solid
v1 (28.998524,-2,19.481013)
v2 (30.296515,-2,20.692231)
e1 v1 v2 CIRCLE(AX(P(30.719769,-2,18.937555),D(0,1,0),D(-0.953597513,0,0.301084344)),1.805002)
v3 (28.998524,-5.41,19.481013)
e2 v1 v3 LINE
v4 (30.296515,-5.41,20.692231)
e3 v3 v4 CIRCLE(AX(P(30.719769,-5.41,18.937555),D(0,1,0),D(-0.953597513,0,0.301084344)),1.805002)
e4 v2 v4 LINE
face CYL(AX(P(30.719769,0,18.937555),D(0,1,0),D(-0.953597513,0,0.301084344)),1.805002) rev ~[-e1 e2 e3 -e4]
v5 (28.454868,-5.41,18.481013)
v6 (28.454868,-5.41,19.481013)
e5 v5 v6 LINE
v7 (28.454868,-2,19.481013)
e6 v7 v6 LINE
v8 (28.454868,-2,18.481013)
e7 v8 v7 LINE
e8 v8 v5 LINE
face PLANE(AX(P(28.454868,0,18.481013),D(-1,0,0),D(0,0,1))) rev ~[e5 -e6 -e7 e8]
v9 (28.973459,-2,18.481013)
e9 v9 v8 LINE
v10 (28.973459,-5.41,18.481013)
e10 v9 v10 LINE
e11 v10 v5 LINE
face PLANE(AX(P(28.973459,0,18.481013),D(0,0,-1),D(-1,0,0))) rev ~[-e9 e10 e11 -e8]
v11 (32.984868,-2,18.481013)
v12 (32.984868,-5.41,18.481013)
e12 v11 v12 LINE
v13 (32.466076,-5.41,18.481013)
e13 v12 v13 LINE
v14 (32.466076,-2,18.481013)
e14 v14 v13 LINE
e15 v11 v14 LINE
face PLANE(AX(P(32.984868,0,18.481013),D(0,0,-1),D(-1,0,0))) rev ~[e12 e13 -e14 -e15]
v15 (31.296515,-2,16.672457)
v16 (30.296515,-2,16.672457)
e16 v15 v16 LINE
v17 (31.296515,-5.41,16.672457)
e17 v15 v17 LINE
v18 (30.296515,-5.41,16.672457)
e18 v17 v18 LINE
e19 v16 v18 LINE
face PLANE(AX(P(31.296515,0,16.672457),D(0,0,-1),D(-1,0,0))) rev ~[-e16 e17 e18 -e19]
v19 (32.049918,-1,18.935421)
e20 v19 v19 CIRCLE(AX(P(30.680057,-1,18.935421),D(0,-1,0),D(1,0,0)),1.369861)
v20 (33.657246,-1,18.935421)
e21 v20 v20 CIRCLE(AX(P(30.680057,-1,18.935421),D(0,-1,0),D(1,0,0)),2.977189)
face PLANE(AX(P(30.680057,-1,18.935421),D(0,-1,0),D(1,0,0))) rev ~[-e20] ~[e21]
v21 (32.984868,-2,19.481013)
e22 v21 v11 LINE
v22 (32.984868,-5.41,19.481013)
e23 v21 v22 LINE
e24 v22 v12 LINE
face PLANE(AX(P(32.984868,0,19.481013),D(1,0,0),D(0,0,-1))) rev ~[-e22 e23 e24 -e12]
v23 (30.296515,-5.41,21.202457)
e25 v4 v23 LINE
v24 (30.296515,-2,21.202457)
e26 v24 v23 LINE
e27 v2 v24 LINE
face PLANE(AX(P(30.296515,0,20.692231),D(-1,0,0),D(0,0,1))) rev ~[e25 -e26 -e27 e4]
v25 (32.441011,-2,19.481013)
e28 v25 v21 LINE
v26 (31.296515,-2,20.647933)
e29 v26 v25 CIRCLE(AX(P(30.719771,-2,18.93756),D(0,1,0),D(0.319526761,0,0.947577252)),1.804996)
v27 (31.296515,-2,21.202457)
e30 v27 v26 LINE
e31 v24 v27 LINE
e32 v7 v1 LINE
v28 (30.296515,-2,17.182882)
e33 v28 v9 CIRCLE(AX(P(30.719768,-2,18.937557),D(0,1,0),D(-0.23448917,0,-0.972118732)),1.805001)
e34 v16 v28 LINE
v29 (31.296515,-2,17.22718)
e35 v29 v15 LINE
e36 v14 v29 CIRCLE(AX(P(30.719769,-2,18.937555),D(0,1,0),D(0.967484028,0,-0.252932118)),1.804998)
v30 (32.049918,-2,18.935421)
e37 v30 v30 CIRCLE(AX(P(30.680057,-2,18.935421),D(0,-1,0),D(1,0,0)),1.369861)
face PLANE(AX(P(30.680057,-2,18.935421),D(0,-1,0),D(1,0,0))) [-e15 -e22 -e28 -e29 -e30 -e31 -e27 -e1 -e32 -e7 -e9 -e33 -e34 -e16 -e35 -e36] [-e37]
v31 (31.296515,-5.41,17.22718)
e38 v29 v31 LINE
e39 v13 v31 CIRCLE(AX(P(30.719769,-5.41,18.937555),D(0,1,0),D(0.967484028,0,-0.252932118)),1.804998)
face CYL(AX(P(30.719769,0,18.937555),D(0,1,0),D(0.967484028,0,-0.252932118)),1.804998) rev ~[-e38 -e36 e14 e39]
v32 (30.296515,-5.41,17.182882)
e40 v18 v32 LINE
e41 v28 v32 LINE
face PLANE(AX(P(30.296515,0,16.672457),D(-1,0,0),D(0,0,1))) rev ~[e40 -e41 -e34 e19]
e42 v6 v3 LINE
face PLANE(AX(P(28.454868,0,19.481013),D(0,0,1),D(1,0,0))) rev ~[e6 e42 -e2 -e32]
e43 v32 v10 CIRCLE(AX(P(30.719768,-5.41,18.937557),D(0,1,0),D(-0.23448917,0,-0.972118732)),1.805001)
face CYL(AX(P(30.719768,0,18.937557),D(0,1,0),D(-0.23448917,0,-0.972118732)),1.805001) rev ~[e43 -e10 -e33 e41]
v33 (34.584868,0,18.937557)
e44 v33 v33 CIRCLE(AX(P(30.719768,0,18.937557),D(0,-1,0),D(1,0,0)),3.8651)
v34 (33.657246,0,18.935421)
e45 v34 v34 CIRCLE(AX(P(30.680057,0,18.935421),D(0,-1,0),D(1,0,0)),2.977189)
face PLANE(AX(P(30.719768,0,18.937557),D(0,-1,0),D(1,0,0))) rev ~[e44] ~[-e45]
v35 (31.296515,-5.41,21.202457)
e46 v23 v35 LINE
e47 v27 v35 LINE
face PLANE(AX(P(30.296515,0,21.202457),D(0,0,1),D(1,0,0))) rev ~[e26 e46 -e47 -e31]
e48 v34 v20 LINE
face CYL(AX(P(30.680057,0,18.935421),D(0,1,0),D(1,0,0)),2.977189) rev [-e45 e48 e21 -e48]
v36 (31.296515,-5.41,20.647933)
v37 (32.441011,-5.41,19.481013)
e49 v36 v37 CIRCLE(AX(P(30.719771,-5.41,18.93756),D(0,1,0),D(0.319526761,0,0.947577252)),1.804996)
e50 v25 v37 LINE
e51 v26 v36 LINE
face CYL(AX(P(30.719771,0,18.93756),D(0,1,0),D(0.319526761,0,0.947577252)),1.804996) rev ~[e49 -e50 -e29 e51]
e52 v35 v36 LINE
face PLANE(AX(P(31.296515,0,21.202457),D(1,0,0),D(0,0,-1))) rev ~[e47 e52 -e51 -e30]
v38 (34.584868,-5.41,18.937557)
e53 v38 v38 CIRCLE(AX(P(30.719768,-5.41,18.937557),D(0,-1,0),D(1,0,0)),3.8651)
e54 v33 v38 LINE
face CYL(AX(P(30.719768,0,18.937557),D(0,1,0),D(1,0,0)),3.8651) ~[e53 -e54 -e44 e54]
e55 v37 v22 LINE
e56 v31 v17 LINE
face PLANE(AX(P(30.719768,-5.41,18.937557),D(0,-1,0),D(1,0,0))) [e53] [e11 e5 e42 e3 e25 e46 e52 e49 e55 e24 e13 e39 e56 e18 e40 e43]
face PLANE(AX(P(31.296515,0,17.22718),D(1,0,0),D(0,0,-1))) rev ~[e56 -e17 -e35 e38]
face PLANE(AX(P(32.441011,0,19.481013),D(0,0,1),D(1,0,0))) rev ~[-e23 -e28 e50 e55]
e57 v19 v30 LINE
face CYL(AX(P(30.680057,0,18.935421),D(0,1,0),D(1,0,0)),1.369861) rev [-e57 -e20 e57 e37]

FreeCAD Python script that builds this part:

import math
import FreeCAD as App
import Part
import Sketcher
from FreeCAD import Vector

doc = App.newDocument("Part")
body = doc.addObject("PartDesign::Body", "Body")

sketch1 = body.newObject("Sketcher::SketchObject", "Sketch")
sketch1.AttachmentSupport = (doc.getObject("XZ_Plane"), [""])
sketch1.MapMode = "FlatFace"
sketch1.addGeometry([
    Part.Circle(Vector(30.719768, 18.937557, 0), Vector(0, 0, 1), 3.8651),
    Part.LineSegment(Vector(28.454868, 19.481013, 0), Vector(28.998524, 19.481013, 0)),
    Part.ArcOfCircle(Part.Circle(Vector(30.719769, 18.937555, 0), Vector(0, 0, 1), 1.805002), math.radians(103.561538), math.radians(162.477257)),
    Part.LineSegment(Vector(30.296515, 20.692231, 0), Vector(30.296515, 21.202457, 0)),
    Part.LineSegment(Vector(30.296515, 21.202457, 0), Vector(31.296515, 21.202457, 0)),
    Part.LineSegment(Vector(31.296515, 21.202457, 0), Vector(31.296515, 20.647933, 0)),
    Part.ArcOfCircle(Part.Circle(Vector(30.719771, 18.93756, 0), Vector(0, 0, 1), 1.804996), math.radians(17.522643), math.radians(71.365692)),
    Part.LineSegment(Vector(32.441011, 19.481013, 0), Vector(32.984868, 19.481013, 0)),
    Part.LineSegment(Vector(32.984868, 19.481013, 0), Vector(32.984868, 18.481013, 0)),
    Part.LineSegment(Vector(32.984868, 18.481013, 0), Vector(32.466076, 18.481013, 0)),
    Part.ArcOfCircle(Part.Circle(Vector(30.719769, 18.937555, 0), Vector(0, 0, 1), 1.804998), math.radians(-71.365668), math.radians(-14.651088)),
    Part.LineSegment(Vector(31.296515, 17.22718, 0), Vector(31.296515, 16.672457, 0)),
    Part.LineSegment(Vector(31.296515, 16.672457, 0), Vector(30.296515, 16.672457, 0)),
    Part.LineSegment(Vector(30.296515, 16.672457, 0), Vector(30.296515, 17.182882, 0)),
    Part.ArcOfCircle(Part.Circle(Vector(30.719768, 18.937557, 0), Vector(0, 0, 1), 1.805001), math.radians(-165.348863), math.radians(-103.561513)),
    Part.LineSegment(Vector(28.973459, 18.481013, 0), Vector(28.454868, 18.481013, 0)),
    Part.LineSegment(Vector(28.454868, 18.481013, 0), Vector(28.454868, 19.481013, 0)),
], False)
sketch1.addConstraint([
    Sketcher.Constraint("Coincident", 1, 2, 2, 2),
    Sketcher.Constraint("Coincident", 2, 1, 3, 1),
    Sketcher.Constraint("Coincident", 3, 2, 4, 1),
    Sketcher.Constraint("Coincident", 4, 2, 5, 1),
    Sketcher.Constraint("Coincident", 5, 2, 6, 2),
    Sketcher.Constraint("Coincident", 6, 1, 7, 1),
    Sketcher.Constraint("Coincident", 7, 2, 8, 1),
    Sketcher.Constraint("Coincident", 8, 2, 9, 1),
    Sketcher.Constraint("Coincident", 9, 2, 10, 2),
    Sketcher.Constraint("Coincident", 10, 1, 11, 1),
    Sketcher.Constraint("Coincident", 11, 2, 12, 1),
    Sketcher.Constraint("Coincident", 12, 2, 13, 1),
    Sketcher.Constraint("Coincident", 13, 2, 14, 2),
    Sketcher.Constraint("Coincident", 14, 1, 15, 1),
    Sketcher.Constraint("Coincident", 15, 2, 16, 1),
    Sketcher.Constraint("Coincident", 16, 2, 1, 1),
    Sketcher.Constraint("Horizontal", 1),
    Sketcher.Constraint("Vertical", 3),
    Sketcher.Constraint("Horizontal", 4),
    Sketcher.Constraint("Vertical", 5),
    Sketcher.Constraint("Horizontal", 7),
    Sketcher.Constraint("Vertical", 8),
    Sketcher.Constraint("Horizontal", 9),
    Sketcher.Constraint("Vertical", 11),
    Sketcher.Constraint("Horizontal", 12),
    Sketcher.Constraint("Vertical", 13),
    Sketcher.Constraint("Horizontal", 15),
    Sketcher.Constraint("Vertical", 16),
    Sketcher.Constraint("Coincident", 2, 3, 0, 3),
    Sketcher.Constraint("Coincident", 6, 3, 0, 3),
    Sketcher.Constraint("Coincident", 10, 3, 0, 3),
    Sketcher.Constraint("Coincident", 14, 3, 0, 3),
    Sketcher.Constraint("Equal", 2, 14),
    Sketcher.Constraint("Horizontal", 1, 2, 6, 1),
    Sketcher.Constraint("Horizontal", 9, 2, 14, 1),
    Sketcher.Constraint("Vertical", 5, 2, 10, 1),
    Sketcher.Constraint("Vertical", 3, 2, 12, 2),
    Sketcher.Constraint("Equal", 12, 8),
    Sketcher.Constraint("DistanceX", 4, 1, 4, 2, 1.0),
    Sketcher.Constraint("Radius", 2, 1.805002),
    Sketcher.Constraint("Radius", 10, 1.804998),
    Sketcher.Constraint("Diameter", 0, 7.7302),
    Sketcher.Constraint("Radius", 6, 1.804996),
    Sketcher.Constraint("DistanceX", 9, 2, 9, 1, 0.518792),
    Sketcher.Constraint("DistanceX", 15, 2, 15, 1, 0.518591),
    Sketcher.Constraint("DistanceY", 14, 3, 3, 2, 2.2649),
    Sketcher.Constraint("DistanceX", 2, 3, 7, 2, 2.265099),
    Sketcher.Constraint("DistanceY", 11, 2, 10, 3, 2.265098),
    Sketcher.Constraint("DistanceY", 3, 1, 3, 2, 0.510226),
    Sketcher.Constraint("DistanceX", -1, 1, 2, 3, 30.719769),
    Sketcher.Constraint("DistanceY", -1, 1, 6, 3, 18.93756),
])
pad1 = body.newObject("PartDesign::Pad", "Pad")
pad1.Profile = sketch1
pad1.Length = 5.41

sketch2 = body.newObject("Sketcher::SketchObject", "Sketch001")
sketch2.AttachmentSupport = (doc.getObject("XZ_Plane"), [""])
sketch2.MapMode = "FlatFace"
sketch2.addGeometry([
    Part.Circle(Vector(30.680057, 18.935421, 0), Vector(0, 0, 1), 2.977189),
    Part.Circle(Vector(30.680057, 18.935421, 0), Vector(0, 0, 1), 1.369861),
], False)
sketch2.addConstraint([
    Sketcher.Constraint("Coincident", 1, 3, 0, 3),
    Sketcher.Constraint("Diameter", 0, 5.954378),
    Sketcher.Constraint("Diameter", 1, 2.739722),
    Sketcher.Constraint("DistanceY", -1, 1, 0, 3, 18.935421),
    Sketcher.Constraint("DistanceX", -1, 1, 0, 3, 30.680057),
])
pad2 = body.newObject("PartDesign::Pad", "Pad001")
pad2.Profile = sketch2
pad2.Length = 2

sketch3 = body.newObject("Sketcher::SketchObject", "Sketch002")
sketch3.AttachmentSupport = (doc.getObject("XZ_Plane"), [""])
sketch3.MapMode = "FlatFace"
sketch3.addGeometry([
    Part.Circle(Vector(30.680057, 18.935421, 0), Vector(0, 0, 1), 2.977189),
    Part.Circle(Vector(30.680057, 18.935421, 0), Vector(0, 0, 1), 1.369861),
], False)
sketch3.addConstraint([
    Sketcher.Constraint("Coincident", 1, 3, 0, 3),
    Sketcher.Constraint("Diameter", 0, 5.954378),
    Sketcher.Constraint("Diameter", 1, 2.739722),
    Sketcher.Constraint("DistanceY", -1, 1, 0, 3, 18.935421),
    Sketcher.Constraint("DistanceX", -1, 1, 0, 3, 30.680057),
])
pocket1 = body.newObject("PartDesign::Pocket", "Pocket")
pocket1.Profile = sketch3
pocket1.Length = 1
pocket1.Reversed = True

doc.recompute()
